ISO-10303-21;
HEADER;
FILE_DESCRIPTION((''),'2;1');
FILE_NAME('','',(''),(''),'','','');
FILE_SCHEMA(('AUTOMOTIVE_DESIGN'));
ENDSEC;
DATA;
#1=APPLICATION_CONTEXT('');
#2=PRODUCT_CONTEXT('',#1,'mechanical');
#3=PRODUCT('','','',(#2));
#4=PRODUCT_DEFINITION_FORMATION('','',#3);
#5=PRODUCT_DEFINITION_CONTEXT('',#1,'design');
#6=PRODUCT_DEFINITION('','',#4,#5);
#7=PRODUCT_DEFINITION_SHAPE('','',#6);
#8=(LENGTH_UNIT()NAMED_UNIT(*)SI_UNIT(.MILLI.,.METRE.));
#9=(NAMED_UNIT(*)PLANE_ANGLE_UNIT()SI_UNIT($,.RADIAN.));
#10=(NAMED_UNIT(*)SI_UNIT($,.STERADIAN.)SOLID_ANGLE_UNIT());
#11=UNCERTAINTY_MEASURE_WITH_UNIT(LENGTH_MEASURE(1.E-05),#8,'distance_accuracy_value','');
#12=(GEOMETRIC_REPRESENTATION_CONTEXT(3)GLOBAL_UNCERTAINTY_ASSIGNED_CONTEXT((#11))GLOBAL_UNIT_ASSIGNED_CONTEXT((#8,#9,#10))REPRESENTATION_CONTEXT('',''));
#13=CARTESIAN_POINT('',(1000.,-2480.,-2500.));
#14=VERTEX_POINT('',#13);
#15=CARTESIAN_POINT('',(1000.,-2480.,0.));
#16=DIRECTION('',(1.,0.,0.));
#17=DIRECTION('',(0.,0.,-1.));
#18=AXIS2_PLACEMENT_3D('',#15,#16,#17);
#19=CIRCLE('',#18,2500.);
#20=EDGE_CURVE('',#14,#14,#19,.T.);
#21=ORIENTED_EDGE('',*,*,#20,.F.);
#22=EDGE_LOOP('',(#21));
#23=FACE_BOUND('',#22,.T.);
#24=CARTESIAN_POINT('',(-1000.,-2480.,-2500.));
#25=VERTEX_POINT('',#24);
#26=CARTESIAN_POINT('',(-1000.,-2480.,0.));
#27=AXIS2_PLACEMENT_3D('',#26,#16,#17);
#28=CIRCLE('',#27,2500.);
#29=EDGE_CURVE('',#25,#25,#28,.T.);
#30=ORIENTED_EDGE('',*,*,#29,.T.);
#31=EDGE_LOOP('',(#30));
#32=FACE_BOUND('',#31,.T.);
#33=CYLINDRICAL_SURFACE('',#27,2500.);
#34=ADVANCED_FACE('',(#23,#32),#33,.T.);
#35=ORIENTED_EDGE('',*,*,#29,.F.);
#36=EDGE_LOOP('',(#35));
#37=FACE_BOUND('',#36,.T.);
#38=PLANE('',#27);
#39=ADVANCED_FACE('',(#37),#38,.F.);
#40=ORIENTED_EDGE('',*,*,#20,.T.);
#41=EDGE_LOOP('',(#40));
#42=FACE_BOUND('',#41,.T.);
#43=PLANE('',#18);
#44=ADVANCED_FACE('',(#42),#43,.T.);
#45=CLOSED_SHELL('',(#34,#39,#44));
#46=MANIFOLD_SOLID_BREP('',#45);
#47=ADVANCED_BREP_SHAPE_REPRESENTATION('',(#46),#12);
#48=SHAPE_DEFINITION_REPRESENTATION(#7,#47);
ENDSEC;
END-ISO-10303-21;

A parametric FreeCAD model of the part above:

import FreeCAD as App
import Part
import Sketcher

doc = App.newDocument("Part")
body = doc.addObject("PartDesign::Body", "Body")

# Sketch on YZ plane
sketch1 = doc.addObject("Sketcher::SketchObject", "Sketch")
body.addObject(sketch1)
sketch1.AttachmentSupport = (doc.YZ_Plane, [""])
sketch1.MapMode = "FlatFace"
sketch1.addGeometry(Part.Circle(App.Vector(-2480, 0, 0), App.Vector(0, 0, 1), 2500), False)
sketch1.addConstraint([
    Sketcher.Constraint("PointOnObject", 0, 3, -1),
    Sketcher.Constraint("Diameter", 0, 5000.0),
    Sketcher.Constraint("DistanceX", 0, 3, -1, 1, 2480.0),
])
pad1 = doc.addObject("PartDesign::Pad", "Pad")
body.addObject(pad1)
pad1.Profile = sketch1
pad1.Type = "TwoLengths"
pad1.Length = 1000
pad1.Length2 = 1000

doc.recompute()
